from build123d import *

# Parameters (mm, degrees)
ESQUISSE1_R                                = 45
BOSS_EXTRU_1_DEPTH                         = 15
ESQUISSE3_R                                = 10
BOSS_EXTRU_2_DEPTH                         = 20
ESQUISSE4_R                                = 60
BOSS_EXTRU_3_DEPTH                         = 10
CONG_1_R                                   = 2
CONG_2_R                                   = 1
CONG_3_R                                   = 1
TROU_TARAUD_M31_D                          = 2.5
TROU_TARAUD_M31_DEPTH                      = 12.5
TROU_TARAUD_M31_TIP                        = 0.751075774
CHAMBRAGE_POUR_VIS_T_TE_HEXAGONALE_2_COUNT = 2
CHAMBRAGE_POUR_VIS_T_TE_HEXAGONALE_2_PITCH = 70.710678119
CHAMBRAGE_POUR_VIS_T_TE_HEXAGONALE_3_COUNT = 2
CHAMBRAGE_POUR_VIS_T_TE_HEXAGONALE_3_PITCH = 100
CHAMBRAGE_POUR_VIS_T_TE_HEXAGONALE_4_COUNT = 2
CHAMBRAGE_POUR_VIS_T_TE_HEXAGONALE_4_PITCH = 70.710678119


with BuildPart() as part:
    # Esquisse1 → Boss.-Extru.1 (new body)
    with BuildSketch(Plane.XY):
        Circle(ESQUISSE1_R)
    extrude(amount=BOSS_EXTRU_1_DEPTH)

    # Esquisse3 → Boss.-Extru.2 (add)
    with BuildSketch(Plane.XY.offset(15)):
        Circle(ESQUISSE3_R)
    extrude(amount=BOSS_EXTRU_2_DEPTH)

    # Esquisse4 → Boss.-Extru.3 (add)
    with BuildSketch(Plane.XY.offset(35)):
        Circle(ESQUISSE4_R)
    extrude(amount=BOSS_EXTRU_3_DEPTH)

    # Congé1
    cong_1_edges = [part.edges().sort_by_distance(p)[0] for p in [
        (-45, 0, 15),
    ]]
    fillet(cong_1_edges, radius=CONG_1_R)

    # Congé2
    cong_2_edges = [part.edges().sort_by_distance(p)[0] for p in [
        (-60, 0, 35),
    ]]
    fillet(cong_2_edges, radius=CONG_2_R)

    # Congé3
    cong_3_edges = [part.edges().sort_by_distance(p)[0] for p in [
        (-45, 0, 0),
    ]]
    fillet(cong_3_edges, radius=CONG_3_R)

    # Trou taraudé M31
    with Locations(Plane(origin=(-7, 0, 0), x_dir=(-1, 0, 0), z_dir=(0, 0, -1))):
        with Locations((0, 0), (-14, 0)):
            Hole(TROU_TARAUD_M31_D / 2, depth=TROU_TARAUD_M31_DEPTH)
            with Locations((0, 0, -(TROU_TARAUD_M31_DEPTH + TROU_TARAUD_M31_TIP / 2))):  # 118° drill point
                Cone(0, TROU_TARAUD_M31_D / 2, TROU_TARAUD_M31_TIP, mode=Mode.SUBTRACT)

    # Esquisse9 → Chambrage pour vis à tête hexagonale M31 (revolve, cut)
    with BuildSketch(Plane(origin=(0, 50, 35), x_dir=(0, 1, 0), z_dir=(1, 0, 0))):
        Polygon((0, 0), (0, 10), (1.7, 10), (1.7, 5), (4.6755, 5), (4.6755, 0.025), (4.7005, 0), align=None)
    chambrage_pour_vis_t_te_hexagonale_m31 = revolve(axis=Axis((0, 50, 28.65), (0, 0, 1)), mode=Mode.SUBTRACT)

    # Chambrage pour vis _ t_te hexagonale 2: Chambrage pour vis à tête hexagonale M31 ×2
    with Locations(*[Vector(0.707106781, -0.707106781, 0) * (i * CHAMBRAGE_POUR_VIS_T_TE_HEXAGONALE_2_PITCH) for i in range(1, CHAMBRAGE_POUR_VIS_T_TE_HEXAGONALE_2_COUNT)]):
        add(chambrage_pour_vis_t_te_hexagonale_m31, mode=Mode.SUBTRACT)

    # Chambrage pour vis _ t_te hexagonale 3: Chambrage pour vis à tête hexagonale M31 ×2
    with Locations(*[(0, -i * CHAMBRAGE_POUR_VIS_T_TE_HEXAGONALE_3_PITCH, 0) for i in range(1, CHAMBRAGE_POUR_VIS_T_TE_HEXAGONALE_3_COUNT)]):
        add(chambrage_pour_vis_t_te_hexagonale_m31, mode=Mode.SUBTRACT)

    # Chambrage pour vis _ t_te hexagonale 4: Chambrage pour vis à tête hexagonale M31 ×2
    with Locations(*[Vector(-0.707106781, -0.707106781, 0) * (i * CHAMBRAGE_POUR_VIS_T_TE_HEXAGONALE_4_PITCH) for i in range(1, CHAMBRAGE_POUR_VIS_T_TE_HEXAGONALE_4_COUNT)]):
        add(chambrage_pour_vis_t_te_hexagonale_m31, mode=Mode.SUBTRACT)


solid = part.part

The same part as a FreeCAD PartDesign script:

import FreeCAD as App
import Part
import Sketcher

V = App.Vector
Q = App.Units.Quantity


def edges_at(feature, points):
    """Names of the edges that pass closest to the given points."""
    edges = feature.Shape.Edges
    near = lambda p: min(range(len(edges)), key=lambda i: edges[i].distToShape(Part.Vertex(*p))[0])
    return sorted({f"Edge{near(p) + 1}" for p in points})


def add_polygon(sketch, points):
    """Adds a closed chain of lines whose ends are joined by coincident constraints."""
    first, n = sketch.GeometryCount, len(points)
    for a, b in zip(points, points[1:] + points[:1]):
        sketch.addGeometry(Part.LineSegment(App.Vector(*a, 0), App.Vector(*b, 0)), False)
    for i in range(n):
        sketch.addConstraint(Sketcher.Constraint("Coincident", first + i, 2, first + (i + 1) % n, 1))

doc = App.newDocument("Part")
params = doc.addObject("Spreadsheet::Sheet", "Params")
for row, (alias, value) in enumerate([
    ("sketch1_diameter", "90 mm"),
    ("pad1_length", "15 mm"),
    ("sketch2_diameter", "20 mm"),
    ("pad2_length", "20 mm"),
    ("sketch3_diameter", "120 mm"),
    ("pad3_length", "10 mm"),
    ("fillet_radius", "2 mm"),
    ("fillet2_radius", "1 mm"),
    ("fillet3_radius", "1 mm"),
    ("sketch4_diameter", "2.5 mm"),
    ("hole_diameter", "2.5 mm"),
    ("hole_depth", "12.5 mm"),
    ("sketch5_height", "10 mm"),
    ("sketch5_height2", "5 mm"),
    ("sketch5_width", "1.7 mm"),
    ("groove_angle", "360 deg"),
    ("linearpattern_pitch", "70.710678 mm"),
    ("linearpattern2_pitch", "100 mm"),
    ("linearpattern3_pitch", "70.710678 mm"),
], start=1):
    params.set(f"A{row}", alias)
    params.set(f"B{row}", "=" + value)
    params.setAlias(f"B{row}", alias)

body = doc.addObject("PartDesign::Body", "Body")

# Sketch on XY plane
sketch1 = body.newObject("Sketcher::SketchObject", "Sketch")
sketch1.AttachmentSupport = (doc.getObject("XY_Plane"), [""])
sketch1.MapMode = "FlatFace"
sketch1.addGeometry(Part.Circle(V(0, 0, 0), V(0, 0, 1), 45), False)
sketch1.addConstraint(Sketcher.Constraint("Coincident", 0, 3, -1, 1))
sketch1.addConstraint(Sketcher.Constraint("Diameter", 0, 90.0))
sketch1.setExpression("Constraints[1]", "Params.sketch1_diameter")
pad1 = body.newObject("PartDesign::Pad", "Pad")
pad1.Profile = sketch1
pad1.setExpression("Length", "Params.pad1_length")

# Sketch on XY plane
sketch2 = body.newObject("Sketcher::SketchObject", "Sketch001")
sketch2.AttachmentSupport = (doc.getObject("XY_Plane"), [""])
sketch2.MapMode = "FlatFace"
sketch2.AttachmentOffset = App.Placement(V(0, 0, 15), App.Rotation())
sketch2.addGeometry(Part.Circle(V(0, 0, 0), V(0, 0, 1), 10), False)
sketch2.addConstraint(Sketcher.Constraint("Coincident", 0, 3, -1, 1))
sketch2.addConstraint(Sketcher.Constraint("Diameter", 0, 20.0))
sketch2.setExpression("Constraints[1]", "Params.sketch2_diameter")
pad2 = body.newObject("PartDesign::Pad", "Pad001")
pad2.Profile = sketch2
pad2.setExpression("Length", "Params.pad2_length")

# Sketch on XY plane
sketch3 = body.newObject("Sketcher::SketchObject", "Sketch002")
sketch3.AttachmentSupport = (doc.getObject("XY_Plane"), [""])
sketch3.MapMode = "FlatFace"
sketch3.AttachmentOffset = App.Placement(V(0, 0, 35), App.Rotation())
sketch3.addGeometry(Part.Circle(V(0, 0, 0), V(0, 0, 1), 60), False)
sketch3.addConstraint(Sketcher.Constraint("Coincident", 0, 3, -1, 1))
sketch3.addConstraint(Sketcher.Constraint("Diameter", 0, 120.0))
sketch3.setExpression("Constraints[1]", "Params.sketch3_diameter")
pad3 = body.newObject("PartDesign::Pad", "Pad002")
pad3.Profile = sketch3
pad3.setExpression("Length", "Params.pad3_length")
doc.recompute()

fillet = body.newObject("PartDesign::Fillet", "Fillet")
fillet.Base = (pad3, edges_at(pad3, [(-45, 0, 15)]))
fillet.setExpression("Radius", "Params.fillet_radius")
doc.recompute()

fillet2 = body.newObject("PartDesign::Fillet", "Fillet001")
fillet2.Base = (fillet, edges_at(fillet, [(-60, 0, 35)]))
fillet2.setExpression("Radius", "Params.fillet2_radius")
doc.recompute()

fillet3 = body.newObject("PartDesign::Fillet", "Fillet002")
fillet3.Base = (fillet2, edges_at(fillet2, [(-45, 0, 0)]))
fillet3.setExpression("Radius", "Params.fillet3_radius")

# Sketch on XY plane
sketch4 = body.newObject("Sketcher::SketchObject", "Sketch003")
sketch4.AttachmentSupport = (doc.getObject("XY_Plane"), [""])
sketch4.MapMode = "FlatFace"
sketch4.addGeometry(Part.Circle(V(-7, 0, 0), V(0, 0, 1), 1.2), False)
sketch4.addGeometry(Part.Circle(V(7, 0, 0), V(0, 0, 1), 1.2), False)
sketch4.addConstraint(Sketcher.Constraint("Equal", 0, 1))
sketch4.addConstraint(Sketcher.Constraint("Symmetric", 0, 3, 1, 3, -1, 1))
sketch4.addConstraint(Sketcher.Constraint("PointOnObject", 0, 3, -1))
sketch4.addConstraint(Sketcher.Constraint("Diameter", 0, 2.5))
sketch4.addConstraint(Sketcher.Constraint("DistanceX", 0, 3, -1, 1, 7.0))
sketch4.setExpression("Constraints[3]", "Params.sketch4_diameter")
doc.recompute()
hole = body.newObject("PartDesign::Hole", "Hole")
hole.Profile = sketch4
hole.ThreadType = "None"
hole.setExpression("Diameter", "Params.hole_diameter")
hole.DepthType = "Dimension"
hole.setExpression("Depth", "Params.hole_depth")
hole.DrillPoint = "Angled"
hole.DrillPointAngle = 118
hole.Reversed = True

# Sketch on YZ plane
sketch5 = body.newObject("Sketcher::SketchObject", "Sketch004")
sketch5.AttachmentSupport = (doc.getObject("YZ_Plane"), [""])
sketch5.MapMode = "FlatFace"
add_polygon(sketch5, [(50, 45), (50, 35), (54.7, 35), (54.675, 35.025), (54.675, 40), (51.7, 40), (51.7, 45)])  # lines 0-6
sketch5.addGeometry(Part.LineSegment(V(50, 35, 0), V(50, 45, 0)), True)  # axis
sketch5.addConstraint(Sketcher.Constraint("Vertical", 0))
sketch5.addConstraint(Sketcher.Constraint("Horizontal", 1))
sketch5.addConstraint(Sketcher.Constraint("Vertical", 3))
sketch5.addConstraint(Sketcher.Constraint("Horizontal", 4))
sketch5.addConstraint(Sketcher.Constraint("Vertical", 5))
sketch5.addConstraint(Sketcher.Constraint("Horizontal", 6))
sketch5.addConstraint(Sketcher.Constraint("Vertical", 7))
sketch5.addConstraint(Sketcher.Constraint("Coincident", 7, 1, 0, 2))
sketch5.addConstraint(Sketcher.Constraint("Horizontal", 5, 2, 7, 2))
sketch5.addConstraint(Sketcher.Constraint("DistanceY", 0, 2, 0, 1, 10.0))
sketch5.addConstraint(Sketcher.Constraint("DistanceY", 5, 1, 5, 2, 5.0))
sketch5.addConstraint(Sketcher.Constraint("Angle", 2, Q("135 deg")))
sketch5.addConstraint(Sketcher.Constraint("DistanceX", 6, 2, 6, 1, 1.7))
sketch5.addConstraint(Sketcher.Constraint("DistanceX", -1, 1, 0, 2, 50.0))
sketch5.addConstraint(Sketcher.Constraint("DistanceY", -1, 1, 0, 2, 35.0))
sketch5.addConstraint(Sketcher.Constraint("DistanceY", 3, 1, 3, 2, 4.975))
sketch5.addConstraint(Sketcher.Constraint("DistanceX", 1, 1, 1, 2, 4.7005))
sketch5.setExpression("Constraints[16]", "Params.sketch5_height")
sketch5.setExpression("Constraints[17]", "Params.sketch5_height2")
sketch5.setExpression("Constraints[19]", "Params.sketch5_width")
groove = body.newObject("PartDesign::Groove", "Groove")
groove.Profile = sketch5
groove.ReferenceAxis = (sketch5, ["Axis0"])
groove.setExpression("Angle", "Params.groove_angle")
doc.recompute()

datumline = body.newObject("PartDesign::Line", "DatumLine")
datumline.Placement = App.Placement(V(0, 0, 0), App.Rotation(V(0, 0, 1), V(0.707106781, -0.707106781, 0)))
linearpattern = body.newObject("PartDesign::LinearPattern", "LinearPattern")
linearpattern.Originals = [groove]
linearpattern.Direction = (datumline, [""])
linearpattern.Mode = "offset"
linearpattern.setExpression("Offset", "Params.linearpattern_pitch")
linearpattern.Occurrences = 2
body.Tip = linearpattern
doc.recompute()

linearpattern2 = body.newObject("PartDesign::LinearPattern", "LinearPattern001")
linearpattern2.Originals = [groove]
linearpattern2.Direction = (doc.getObject("Y_Axis"), [""])
linearpattern2.Mode = "offset"
linearpattern2.setExpression("Offset", "Params.linearpattern2_pitch")
linearpattern2.Occurrences = 2
linearpattern2.Reversed = True
body.Tip = linearpattern2
doc.recompute()

datumline2 = body.newObject("PartDesign::Line", "DatumLine001")
datumline2.Placement = App.Placement(V(0, 0, 0), App.Rotation(V(0, 0, 1), V(-0.707106781, -0.707106781, 0)))
linearpattern3 = body.newObject("PartDesign::LinearPattern", "LinearPattern002")
linearpattern3.Originals = [groove]
linearpattern3.Direction = (datumline2, [""])
linearpattern3.Mode = "offset"
linearpattern3.setExpression("Offset", "Params.linearpattern3_pitch")
linearpattern3.Occurrences = 2
body.Tip = linearpattern3

doc.recompute()
